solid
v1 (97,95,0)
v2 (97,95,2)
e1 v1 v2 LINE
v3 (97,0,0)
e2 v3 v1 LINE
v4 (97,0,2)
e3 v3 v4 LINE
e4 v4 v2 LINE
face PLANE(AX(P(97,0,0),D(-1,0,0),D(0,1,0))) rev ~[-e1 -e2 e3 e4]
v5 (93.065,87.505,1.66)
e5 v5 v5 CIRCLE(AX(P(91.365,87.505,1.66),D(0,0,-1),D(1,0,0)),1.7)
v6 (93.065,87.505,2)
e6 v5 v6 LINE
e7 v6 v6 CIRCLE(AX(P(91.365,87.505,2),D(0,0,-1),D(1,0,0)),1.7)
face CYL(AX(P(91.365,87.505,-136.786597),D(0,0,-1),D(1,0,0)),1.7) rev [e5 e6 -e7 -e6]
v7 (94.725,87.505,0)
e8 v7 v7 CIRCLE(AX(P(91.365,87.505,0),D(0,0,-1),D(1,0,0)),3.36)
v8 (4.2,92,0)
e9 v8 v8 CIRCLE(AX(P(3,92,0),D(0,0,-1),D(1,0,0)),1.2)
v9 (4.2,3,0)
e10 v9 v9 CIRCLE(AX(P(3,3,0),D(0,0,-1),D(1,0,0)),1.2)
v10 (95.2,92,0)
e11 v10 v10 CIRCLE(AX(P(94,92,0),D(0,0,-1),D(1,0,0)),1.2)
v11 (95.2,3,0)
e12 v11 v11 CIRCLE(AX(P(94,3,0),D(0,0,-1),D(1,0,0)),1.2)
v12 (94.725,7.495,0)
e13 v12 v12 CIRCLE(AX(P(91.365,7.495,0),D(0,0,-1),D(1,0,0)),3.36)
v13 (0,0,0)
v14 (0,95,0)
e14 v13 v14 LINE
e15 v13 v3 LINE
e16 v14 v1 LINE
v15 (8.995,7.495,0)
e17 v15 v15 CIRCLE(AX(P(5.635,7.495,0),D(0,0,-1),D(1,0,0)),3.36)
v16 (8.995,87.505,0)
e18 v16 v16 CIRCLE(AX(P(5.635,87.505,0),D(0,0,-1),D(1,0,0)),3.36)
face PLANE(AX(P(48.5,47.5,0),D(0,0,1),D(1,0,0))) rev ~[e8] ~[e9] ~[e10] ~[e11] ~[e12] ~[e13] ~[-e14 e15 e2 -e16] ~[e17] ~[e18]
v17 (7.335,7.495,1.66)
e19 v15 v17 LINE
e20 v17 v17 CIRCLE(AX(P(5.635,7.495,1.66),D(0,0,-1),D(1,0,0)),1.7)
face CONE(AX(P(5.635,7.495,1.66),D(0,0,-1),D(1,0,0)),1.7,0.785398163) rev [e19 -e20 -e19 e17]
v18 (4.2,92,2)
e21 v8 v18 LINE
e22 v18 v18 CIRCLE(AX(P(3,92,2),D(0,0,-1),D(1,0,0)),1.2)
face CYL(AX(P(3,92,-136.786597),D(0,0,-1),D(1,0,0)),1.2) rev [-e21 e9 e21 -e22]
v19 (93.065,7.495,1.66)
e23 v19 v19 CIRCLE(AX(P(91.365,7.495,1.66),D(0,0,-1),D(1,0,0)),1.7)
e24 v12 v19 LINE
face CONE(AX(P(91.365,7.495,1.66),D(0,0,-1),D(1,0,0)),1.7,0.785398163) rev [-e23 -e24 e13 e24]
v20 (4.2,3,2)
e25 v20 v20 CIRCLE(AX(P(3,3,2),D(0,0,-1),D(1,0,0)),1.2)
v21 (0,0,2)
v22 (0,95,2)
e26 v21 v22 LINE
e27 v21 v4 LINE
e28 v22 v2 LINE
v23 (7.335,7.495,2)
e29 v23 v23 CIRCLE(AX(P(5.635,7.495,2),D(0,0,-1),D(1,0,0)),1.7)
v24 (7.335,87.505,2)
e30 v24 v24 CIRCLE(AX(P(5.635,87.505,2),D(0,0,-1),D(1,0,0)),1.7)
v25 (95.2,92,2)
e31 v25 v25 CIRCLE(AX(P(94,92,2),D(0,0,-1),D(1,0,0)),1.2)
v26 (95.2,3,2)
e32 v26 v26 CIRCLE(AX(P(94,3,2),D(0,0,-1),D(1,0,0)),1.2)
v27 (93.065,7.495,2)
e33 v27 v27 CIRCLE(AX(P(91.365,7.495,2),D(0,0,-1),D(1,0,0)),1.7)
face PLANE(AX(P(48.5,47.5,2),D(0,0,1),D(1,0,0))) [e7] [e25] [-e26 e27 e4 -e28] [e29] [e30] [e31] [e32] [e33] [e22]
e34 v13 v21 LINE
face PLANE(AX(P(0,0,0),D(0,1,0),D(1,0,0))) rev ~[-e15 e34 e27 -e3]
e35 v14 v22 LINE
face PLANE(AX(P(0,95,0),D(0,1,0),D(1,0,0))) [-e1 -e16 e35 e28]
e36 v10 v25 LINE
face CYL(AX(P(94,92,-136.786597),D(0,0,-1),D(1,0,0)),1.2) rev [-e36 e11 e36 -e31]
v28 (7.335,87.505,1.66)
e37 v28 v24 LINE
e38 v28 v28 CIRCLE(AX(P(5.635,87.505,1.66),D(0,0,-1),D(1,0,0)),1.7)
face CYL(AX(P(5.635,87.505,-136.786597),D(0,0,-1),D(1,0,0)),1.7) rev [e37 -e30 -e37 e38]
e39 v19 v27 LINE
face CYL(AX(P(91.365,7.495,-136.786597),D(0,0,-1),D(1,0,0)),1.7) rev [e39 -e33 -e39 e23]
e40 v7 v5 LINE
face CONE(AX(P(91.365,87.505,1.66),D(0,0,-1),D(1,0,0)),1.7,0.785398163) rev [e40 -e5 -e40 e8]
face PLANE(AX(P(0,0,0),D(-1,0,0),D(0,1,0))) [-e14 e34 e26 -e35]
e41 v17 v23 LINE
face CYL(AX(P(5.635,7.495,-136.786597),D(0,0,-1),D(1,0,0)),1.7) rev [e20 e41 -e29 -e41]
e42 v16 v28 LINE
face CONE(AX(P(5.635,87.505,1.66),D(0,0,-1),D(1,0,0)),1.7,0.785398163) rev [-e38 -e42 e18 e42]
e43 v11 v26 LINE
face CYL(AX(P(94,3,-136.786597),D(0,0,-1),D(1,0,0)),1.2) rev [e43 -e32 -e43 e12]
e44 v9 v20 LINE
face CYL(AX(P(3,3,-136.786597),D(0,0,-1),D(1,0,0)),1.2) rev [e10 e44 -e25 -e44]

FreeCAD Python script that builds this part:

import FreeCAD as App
import Part
import Sketcher
from FreeCAD import Vector


def edges_at(feature, points):
    """Names of the edges that pass closest to the given points."""
    edges = feature.Shape.Edges
    near = lambda p: min(range(len(edges)), key=lambda i: edges[i].distToShape(Part.Vertex(*p))[0])
    return sorted({f"Edge{near(p) + 1}" for p in points})

doc = App.newDocument("Part")
body = doc.addObject("PartDesign::Body", "Body")

sketch1 = doc.addObject("Sketcher::SketchObject", "Sketch")
body.addObject(sketch1)
sketch1.AttachmentSupport = (doc.XY_Plane, [""])
sketch1.MapMode = "FlatFace"
sketch1.addGeometry([
    Part.LineSegment(Vector(0, 95, 0), Vector(0, 0, 0)),
    Part.LineSegment(Vector(0, 0, 0), Vector(97, 0, 0)),
    Part.LineSegment(Vector(97, 0, 0), Vector(97, 95, 0)),
    Part.LineSegment(Vector(97, 95, 0), Vector(0, 95, 0)),
], False)
sketch1.addConstraint([
    Sketcher.Constraint("Coincident", 0, 2, 1, 1),
    Sketcher.Constraint("Coincident", 1, 2, 2, 1),
    Sketcher.Constraint("Coincident", 2, 2, 3, 1),
    Sketcher.Constraint("Coincident", 3, 2, 0, 1),
    Sketcher.Constraint("Vertical", 0),
    Sketcher.Constraint("Horizontal", 1),
    Sketcher.Constraint("Vertical", 2),
    Sketcher.Constraint("Horizontal", 3),
    Sketcher.Constraint("Coincident", 0, 2, -1, 1),
    Sketcher.Constraint("DistanceX", 1, 1, 1, 2, 97.0),
    Sketcher.Constraint("DistanceY", 0, 2, 0, 1, 95.0),
])
pad1 = doc.addObject("PartDesign::Pad", "Pad")
body.addObject(pad1)
pad1.Profile = sketch1
pad1.Length = 2

sketch2 = doc.addObject("Sketcher::SketchObject", "Sketch001")
body.addObject(sketch2)
sketch2.AttachmentSupport = (doc.XY_Plane, [""])
sketch2.MapMode = "FlatFace"
sketch2.addGeometry([
    Part.Circle(Vector(3, 3, 0), Vector(0, 0, 1), 1.2),
    Part.Circle(Vector(94, 3, 0), Vector(0, 0, 1), 1.2),
    Part.Circle(Vector(3, 92, 0), Vector(0, 0, 1), 1.2),
    Part.Circle(Vector(94, 92, 0), Vector(0, 0, 1), 1.2),
], False)
sketch2.addConstraint([
    Sketcher.Constraint("Equal", 0, 1),
    Sketcher.Constraint("Equal", 1, 2),
    Sketcher.Constraint("Equal", 2, 3),
    Sketcher.Constraint("Horizontal", 0, 3, 1, 3),
    Sketcher.Constraint("Horizontal", 2, 3, 3, 3),
    Sketcher.Constraint("Vertical", 0, 3, 2, 3),
    Sketcher.Constraint("Vertical", 1, 3, 3, 3),
    Sketcher.Constraint("Diameter", 0, 2.4),
    Sketcher.Constraint("DistanceX", -1, 1, 0, 3, 3.0),
    Sketcher.Constraint("DistanceY", -1, 1, 0, 3, 3.0),
    Sketcher.Constraint("DistanceX", -1, 1, 1, 3, 94.0),
    Sketcher.Constraint("DistanceY", -1, 1, 2, 3, 92.0),
])
pocket1 = doc.addObject("PartDesign::Pocket", "Pocket")
body.addObject(pocket1)
pocket1.Profile = sketch2
pocket1.Type = "ThroughAll"
pocket1.Midplane = True

sketch3 = doc.addObject("Sketcher::SketchObject", "Sketch002")
body.addObject(sketch3)
sketch3.AttachmentSupport = (doc.XY_Plane, [""])
sketch3.MapMode = "FlatFace"
sketch3.addGeometry([
    Part.Circle(Vector(5.635, 7.495, 0), Vector(0, 0, 1), 1.7),
    Part.Circle(Vector(91.365, 7.495, 0), Vector(0, 0, 1), 1.7),
    Part.Circle(Vector(5.635, 87.505, 0), Vector(0, 0, 1), 1.7),
    Part.Circle(Vector(91.365, 87.505, 0), Vector(0, 0, 1), 1.7),
], False)
sketch3.addConstraint([
    Sketcher.Constraint("Equal", 0, 1),
    Sketcher.Constraint("Equal", 1, 2),
    Sketcher.Constraint("Equal", 2, 3),
    Sketcher.Constraint("Horizontal", 0, 3, 1, 3),
    Sketcher.Constraint("Horizontal", 2, 3, 3, 3),
    Sketcher.Constraint("Vertical", 0, 3, 2, 3),
    Sketcher.Constraint("Vertical", 1, 3, 3, 3),
    Sketcher.Constraint("Diameter", 0, 3.4),
    Sketcher.Constraint("DistanceX", 0, 3, 1, 3, 85.73),
    Sketcher.Constraint("DistanceY", 0, 3, 2, 3, 80.01),
    Sketcher.Constraint("DistanceX", -1, 1, 0, 3, 5.635),
    Sketcher.Constraint("DistanceY", -1, 1, 0, 3, 7.495),
])
pocket2 = doc.addObject("PartDesign::Pocket", "Pocket001")
body.addObject(pocket2)
pocket2.Profile = sketch3
pocket2.Type = "ThroughAll"
pocket2.Midplane = True
doc.recompute()

chamfer = doc.addObject("PartDesign::Chamfer", "Chamfer")
body.addObject(chamfer)
chamfer.Base = (pocket2, edges_at(pocket2, [
    (89.665, 7.495, 0),
    (3.935, 87.505, 0),
    (89.665, 87.505, 0),
    (3.935, 7.495, 0),
]))
chamfer.Size = 1.66

doc.recompute()
